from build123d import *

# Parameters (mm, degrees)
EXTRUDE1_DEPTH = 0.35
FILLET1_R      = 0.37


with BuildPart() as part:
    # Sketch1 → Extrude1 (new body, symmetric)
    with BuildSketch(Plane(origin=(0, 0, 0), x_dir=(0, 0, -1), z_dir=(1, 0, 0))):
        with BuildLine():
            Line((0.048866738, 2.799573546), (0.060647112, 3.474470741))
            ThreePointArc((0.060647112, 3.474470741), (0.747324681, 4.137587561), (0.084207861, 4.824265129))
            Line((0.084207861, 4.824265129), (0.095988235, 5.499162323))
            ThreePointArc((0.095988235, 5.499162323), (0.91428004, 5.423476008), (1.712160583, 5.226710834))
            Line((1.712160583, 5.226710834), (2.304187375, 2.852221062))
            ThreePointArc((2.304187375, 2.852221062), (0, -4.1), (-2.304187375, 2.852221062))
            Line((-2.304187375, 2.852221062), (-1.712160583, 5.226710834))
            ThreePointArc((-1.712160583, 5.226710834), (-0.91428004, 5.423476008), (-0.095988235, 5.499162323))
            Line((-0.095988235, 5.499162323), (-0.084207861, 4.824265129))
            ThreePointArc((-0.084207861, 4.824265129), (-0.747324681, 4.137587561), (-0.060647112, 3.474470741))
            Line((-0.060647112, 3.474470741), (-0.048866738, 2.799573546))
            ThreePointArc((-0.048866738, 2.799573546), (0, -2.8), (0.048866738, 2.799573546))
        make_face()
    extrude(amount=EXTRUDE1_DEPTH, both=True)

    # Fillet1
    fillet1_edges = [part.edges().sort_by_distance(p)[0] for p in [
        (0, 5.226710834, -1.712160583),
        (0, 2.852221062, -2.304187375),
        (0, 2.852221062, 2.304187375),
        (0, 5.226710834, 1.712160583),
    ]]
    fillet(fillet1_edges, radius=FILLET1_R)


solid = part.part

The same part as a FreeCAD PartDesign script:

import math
import FreeCAD as App
import Part
import Sketcher

V = App.Vector
Q = App.Units.Quantity


def edges_at(feature, points):
    """Names of the edges that pass closest to the given points."""
    edges = feature.Shape.Edges
    near = lambda p: min(range(len(edges)), key=lambda i: edges[i].distToShape(Part.Vertex(*p))[0])
    return sorted({f"Edge{near(p) + 1}" for p in points})

doc = App.newDocument("Part")
body = doc.addObject("PartDesign::Body", "Body")

sketch1 = body.newObject("Sketcher::SketchObject", "Sketch")
sketch1.AttachmentSupport = (doc.getObject("YZ_Plane"), [""])
sketch1.MapMode = "FlatFace"
sketch1.addGeometry(Part.LineSegment(V(3.47, -0.06, 0), V(2.8, -0.05, 0)), False)
sketch1.addGeometry(Part.ArcOfCircle(Part.Circle(V(0, 0, 0), V(0, 0, 1), 2.8), math.radians(1), math.radians(359)), False)
sketch1.addGeometry(Part.LineSegment(V(2.8, 0.05, 0), V(3.47, 0.06, 0)), False)
sketch1.addGeometry(Part.ArcOfCircle(Part.Circle(V(4.15, 0.07, 0), V(0, 0, 1), 0.68), math.radians(1), math.radians(181)), False)
sketch1.addGeometry(Part.LineSegment(V(4.82, 0.08, 0), V(5.5, 0.1, 0)), False)
sketch1.addGeometry(Part.ArcOfCircle(Part.Circle(V(0, 0, 0), V(0, 0, 1), 5.5), math.radians(1), math.radians(18.14)), False)
sketch1.addGeometry(Part.LineSegment(V(5.23, 1.71, 0), V(2.85, 2.3, 0)), False)
sketch1.addGeometry(Part.ArcOfCircle(Part.Circle(V(-0.24, 0, 0), V(0, 0, 1), 3.86), math.radians(37), math.radians(323)), False)
sketch1.addGeometry(Part.LineSegment(V(2.85, -2.3, 0), V(5.23, -1.71, 0)), False)
sketch1.addGeometry(Part.ArcOfCircle(Part.Circle(V(0, 0, 0), V(0, 0, 1), 5.5), math.radians(-18.14), math.radians(-1)), False)
sketch1.addGeometry(Part.LineSegment(V(5.5, -0.1, 0), V(4.82, -0.08, 0)), False)
sketch1.addGeometry(Part.ArcOfCircle(Part.Circle(V(4.15, -0.07, 0), V(0, 0, 1), 0.68), math.radians(179), math.radians(359)), False)
sketch1.addConstraint(Sketcher.Constraint("Coincident", 0, 2, 1, 2))
sketch1.addConstraint(Sketcher.Constraint("Coincident", 1, 1, 2, 1))
sketch1.addConstraint(Sketcher.Constraint("Coincident", 2, 2, 3, 2))
sketch1.addConstraint(Sketcher.Constraint("Coincident", 3, 1, 4, 1))
sketch1.addConstraint(Sketcher.Constraint("Coincident", 4, 2, 5, 1))
sketch1.addConstraint(Sketcher.Constraint("Coincident", 5, 2, 6, 1))
sketch1.addConstraint(Sketcher.Constraint("Coincident", 6, 2, 7, 1))
sketch1.addConstraint(Sketcher.Constraint("Coincident", 7, 2, 8, 1))
sketch1.addConstraint(Sketcher.Constraint("Coincident", 8, 2, 9, 1))
sketch1.addConstraint(Sketcher.Constraint("Coincident", 9, 2, 10, 1))
sketch1.addConstraint(Sketcher.Constraint("Coincident", 10, 2, 11, 2))
sketch1.addConstraint(Sketcher.Constraint("Coincident", 11, 1, 0, 1))
sketch1.addConstraint(Sketcher.Constraint("Coincident", 1, 3, -1, 1))
sketch1.addConstraint(Sketcher.Constraint("Coincident", 5, 3, -1, 1))
sketch1.addConstraint(Sketcher.Constraint("Coincident", 9, 3, -1, 1))
sketch1.addConstraint(Sketcher.Constraint("Equal", 5, 9))
sketch1.addConstraint(Sketcher.Constraint("Equal", 3, 11))
sketch1.addConstraint(Sketcher.Constraint("Symmetric", 3, 3, 11, 3, -1))
sketch1.addConstraint(Sketcher.Constraint("Symmetric", 6, 2, 7, 2, -1))
sketch1.addConstraint(Sketcher.Constraint("Parallel", 2, 4))
sketch1.addConstraint(Sketcher.Constraint("Parallel", 0, 10))
sketch1.addConstraint(Sketcher.Constraint("Vertical", 0, 2, 1, 1))
sketch1.addConstraint(Sketcher.Constraint("Vertical", 5, 2, 8, 2))
sketch1.addConstraint(Sketcher.Constraint("Vertical", 4, 2, 9, 2))
sketch1.addConstraint(Sketcher.Constraint("Vertical", 3, 1, 10, 2))
sketch1.addConstraint(Sketcher.Constraint("Equal", 2, 4))
sketch1.addConstraint(Sketcher.Constraint("Radius", 1, 2.8))
sketch1.addConstraint(Sketcher.Constraint("Radius", 5, 5.5))
sketch1.addConstraint(Sketcher.Constraint("Angle", 0, Q("179 deg")))
sketch1.addConstraint(Sketcher.Constraint("Angle", 6, Q("166 deg")))
sketch1.addConstraint(Sketcher.Constraint("Radius", 3, 0.675))
sketch1.addConstraint(Sketcher.Constraint("Radius", 7, 3.857951))
sketch1.addConstraint(Sketcher.Constraint("Distance", 6, 2.447182))
sketch1.addConstraint(Sketcher.Constraint("DistanceX", 7, 3, -1, 1, 0.242049))
sketch1.addConstraint(Sketcher.Constraint("DistanceX", -1, 1, 2, 2, 3.474471))
sketch1.addConstraint(Sketcher.Constraint("DistanceY", -1, 1, 4, 2, 0.095988))
sketch1.addConstraint(Sketcher.Constraint("DistanceY", 11, 3, 0, 2, 0.023561))
pad1 = body.newObject("PartDesign::Pad", "Pad")
pad1.Profile = sketch1
pad1.Length = 0.7
pad1.Midplane = True
doc.recompute()

fillet = body.newObject("PartDesign::Fillet", "Fillet")
fillet.Base = (pad1, edges_at(pad1, [
    (0, 5.227, -1.712),
    (0, 2.852, -2.304),
    (0, 2.852, 2.304),
    (0, 5.227, 1.712),
]))
fillet.Radius = 0.37

doc.recompute()
